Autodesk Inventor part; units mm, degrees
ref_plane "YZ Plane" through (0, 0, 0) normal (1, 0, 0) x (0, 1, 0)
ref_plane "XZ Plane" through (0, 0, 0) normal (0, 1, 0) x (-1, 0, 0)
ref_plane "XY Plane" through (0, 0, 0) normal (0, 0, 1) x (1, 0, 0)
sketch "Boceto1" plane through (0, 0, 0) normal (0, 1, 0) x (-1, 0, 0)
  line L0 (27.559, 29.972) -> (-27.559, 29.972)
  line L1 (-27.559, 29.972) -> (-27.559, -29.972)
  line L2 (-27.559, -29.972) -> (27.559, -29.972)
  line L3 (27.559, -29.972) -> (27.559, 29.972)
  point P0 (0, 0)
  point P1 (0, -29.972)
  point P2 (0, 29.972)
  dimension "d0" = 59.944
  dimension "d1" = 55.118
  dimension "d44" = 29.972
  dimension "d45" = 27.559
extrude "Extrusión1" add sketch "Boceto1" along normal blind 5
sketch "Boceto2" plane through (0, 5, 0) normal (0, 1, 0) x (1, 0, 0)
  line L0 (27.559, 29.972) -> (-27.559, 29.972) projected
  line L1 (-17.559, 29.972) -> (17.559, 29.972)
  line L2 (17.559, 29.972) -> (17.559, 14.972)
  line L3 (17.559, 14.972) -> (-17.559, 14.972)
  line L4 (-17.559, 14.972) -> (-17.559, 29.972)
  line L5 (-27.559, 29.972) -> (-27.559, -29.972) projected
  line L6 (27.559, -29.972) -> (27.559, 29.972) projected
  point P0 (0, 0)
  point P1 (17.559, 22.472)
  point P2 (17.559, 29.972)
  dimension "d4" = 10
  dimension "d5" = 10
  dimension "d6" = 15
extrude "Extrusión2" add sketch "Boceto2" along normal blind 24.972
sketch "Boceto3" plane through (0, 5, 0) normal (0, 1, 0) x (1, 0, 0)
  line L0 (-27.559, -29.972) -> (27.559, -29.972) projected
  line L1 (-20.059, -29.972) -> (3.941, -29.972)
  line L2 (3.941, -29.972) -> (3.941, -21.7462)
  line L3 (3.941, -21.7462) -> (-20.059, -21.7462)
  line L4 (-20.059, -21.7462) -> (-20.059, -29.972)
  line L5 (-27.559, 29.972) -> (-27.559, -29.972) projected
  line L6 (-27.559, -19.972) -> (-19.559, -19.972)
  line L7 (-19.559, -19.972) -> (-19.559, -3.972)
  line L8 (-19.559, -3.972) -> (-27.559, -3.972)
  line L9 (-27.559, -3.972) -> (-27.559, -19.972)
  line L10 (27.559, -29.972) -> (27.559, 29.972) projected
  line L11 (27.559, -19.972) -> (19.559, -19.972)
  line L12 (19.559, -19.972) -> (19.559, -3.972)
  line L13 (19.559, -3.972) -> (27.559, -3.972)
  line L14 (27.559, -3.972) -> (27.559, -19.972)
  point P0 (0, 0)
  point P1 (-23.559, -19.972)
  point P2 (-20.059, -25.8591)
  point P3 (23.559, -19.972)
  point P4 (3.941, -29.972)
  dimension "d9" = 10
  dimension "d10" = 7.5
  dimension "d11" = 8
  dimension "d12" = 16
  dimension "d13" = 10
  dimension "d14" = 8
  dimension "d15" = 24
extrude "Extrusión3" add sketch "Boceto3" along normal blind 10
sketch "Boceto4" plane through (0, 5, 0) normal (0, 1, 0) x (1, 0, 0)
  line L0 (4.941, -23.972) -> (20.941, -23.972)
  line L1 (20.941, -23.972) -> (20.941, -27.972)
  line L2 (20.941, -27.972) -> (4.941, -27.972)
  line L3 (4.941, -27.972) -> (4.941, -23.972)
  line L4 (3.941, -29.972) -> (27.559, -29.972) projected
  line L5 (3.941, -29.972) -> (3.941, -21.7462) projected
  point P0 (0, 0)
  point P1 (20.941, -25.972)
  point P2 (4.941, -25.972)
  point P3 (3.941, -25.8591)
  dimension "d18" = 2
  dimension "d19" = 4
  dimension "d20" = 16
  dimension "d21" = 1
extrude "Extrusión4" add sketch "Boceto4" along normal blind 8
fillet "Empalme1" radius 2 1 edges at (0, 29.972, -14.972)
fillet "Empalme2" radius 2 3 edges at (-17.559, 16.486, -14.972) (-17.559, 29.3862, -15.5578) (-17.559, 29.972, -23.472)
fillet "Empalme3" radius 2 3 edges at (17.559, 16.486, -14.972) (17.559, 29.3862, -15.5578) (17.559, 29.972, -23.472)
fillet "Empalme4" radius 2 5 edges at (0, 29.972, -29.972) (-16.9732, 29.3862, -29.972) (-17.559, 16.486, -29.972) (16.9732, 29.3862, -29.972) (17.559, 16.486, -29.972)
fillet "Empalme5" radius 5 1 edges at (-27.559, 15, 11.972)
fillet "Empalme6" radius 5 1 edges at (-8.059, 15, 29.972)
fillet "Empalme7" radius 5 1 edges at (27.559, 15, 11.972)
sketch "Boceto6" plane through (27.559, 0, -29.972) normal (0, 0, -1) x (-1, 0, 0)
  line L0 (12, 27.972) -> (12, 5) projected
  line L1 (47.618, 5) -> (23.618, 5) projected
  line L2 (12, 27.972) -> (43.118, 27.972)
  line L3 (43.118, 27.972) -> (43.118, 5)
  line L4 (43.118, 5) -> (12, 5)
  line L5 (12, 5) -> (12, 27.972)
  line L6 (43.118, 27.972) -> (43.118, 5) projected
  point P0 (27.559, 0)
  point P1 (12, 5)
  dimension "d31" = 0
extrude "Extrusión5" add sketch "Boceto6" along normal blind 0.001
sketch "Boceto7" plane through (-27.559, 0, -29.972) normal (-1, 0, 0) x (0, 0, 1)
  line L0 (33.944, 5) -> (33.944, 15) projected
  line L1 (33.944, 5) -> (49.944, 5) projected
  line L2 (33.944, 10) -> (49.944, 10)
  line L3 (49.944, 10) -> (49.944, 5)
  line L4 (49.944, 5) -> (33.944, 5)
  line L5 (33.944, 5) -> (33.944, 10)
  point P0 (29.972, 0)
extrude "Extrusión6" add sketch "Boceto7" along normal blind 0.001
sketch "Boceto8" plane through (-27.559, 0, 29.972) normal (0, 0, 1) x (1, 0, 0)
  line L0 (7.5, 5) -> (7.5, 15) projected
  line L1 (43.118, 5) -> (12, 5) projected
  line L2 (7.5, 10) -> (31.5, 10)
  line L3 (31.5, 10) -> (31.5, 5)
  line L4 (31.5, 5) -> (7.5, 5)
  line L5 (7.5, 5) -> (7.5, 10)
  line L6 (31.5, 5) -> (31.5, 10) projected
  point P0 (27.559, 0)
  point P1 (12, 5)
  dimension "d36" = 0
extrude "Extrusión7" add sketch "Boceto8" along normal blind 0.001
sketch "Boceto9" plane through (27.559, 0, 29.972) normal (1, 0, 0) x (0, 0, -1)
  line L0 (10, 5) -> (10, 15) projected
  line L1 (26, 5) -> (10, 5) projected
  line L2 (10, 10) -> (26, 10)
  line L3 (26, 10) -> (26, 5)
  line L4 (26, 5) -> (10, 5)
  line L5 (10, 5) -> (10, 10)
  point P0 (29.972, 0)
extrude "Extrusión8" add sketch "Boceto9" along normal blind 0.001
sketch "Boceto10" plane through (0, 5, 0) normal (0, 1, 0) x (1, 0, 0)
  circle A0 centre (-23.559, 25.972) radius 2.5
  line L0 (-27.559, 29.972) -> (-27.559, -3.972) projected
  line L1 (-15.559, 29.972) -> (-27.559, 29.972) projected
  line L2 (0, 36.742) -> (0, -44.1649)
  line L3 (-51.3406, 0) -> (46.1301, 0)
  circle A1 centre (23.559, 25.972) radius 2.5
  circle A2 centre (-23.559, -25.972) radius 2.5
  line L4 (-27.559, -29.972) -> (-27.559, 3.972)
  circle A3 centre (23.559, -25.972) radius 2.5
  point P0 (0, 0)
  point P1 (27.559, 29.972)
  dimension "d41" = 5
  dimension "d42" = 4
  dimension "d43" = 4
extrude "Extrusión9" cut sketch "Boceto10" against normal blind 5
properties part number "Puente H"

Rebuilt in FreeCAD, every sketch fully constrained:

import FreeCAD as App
import Part
import Sketcher

V = App.Vector


def edges_at(feature, points):
    """Names of the edges that pass closest to the given points."""
    edges = feature.Shape.Edges
    near = lambda p: min(range(len(edges)), key=lambda i: edges[i].distToShape(Part.Vertex(*p))[0])
    return sorted({f"Edge{near(p) + 1}" for p in points})


def add_polygon(sketch, points):
    """Adds a closed chain of lines whose ends are joined by coincident constraints."""
    first, n = sketch.GeometryCount, len(points)
    for a, b in zip(points, points[1:] + points[:1]):
        sketch.addGeometry(Part.LineSegment(App.Vector(*a, 0), App.Vector(*b, 0)), False)
    for i in range(n):
        sketch.addConstraint(Sketcher.Constraint("Coincident", first + i, 2, first + (i + 1) % n, 1))

doc = App.newDocument("Part")
params = doc.addObject("Spreadsheet::Sheet", "Params")
for row, (alias, value) in enumerate([
    ("pad1_length", "5 mm"),
    ("sketch2_height", "15 mm"),
    ("pad2_length", "24.972 mm"),
    ("sketch3_width", "8 mm"),
    ("sketch3_width2", "24 mm"),
    ("sketch3_height", "16 mm"),
    ("pad3_length", "10 mm"),
    ("sketch4_width", "16 mm"),
    ("sketch4_height", "4 mm"),
    ("pad4_length", "8 mm"),
    ("fillet_radius", "2 mm"),
    ("fillet2_radius", "2 mm"),
    ("fillet3_radius", "2 mm"),
    ("fillet4_radius", "2 mm"),
    ("fillet5_radius", "5 mm"),
    ("fillet6_radius", "5 mm"),
    ("fillet7_radius", "5 mm"),
    ("pad5_length", "0.001 mm"),
    ("sketch6_width", "5 mm"),
    ("sketch6_height", "16 mm"),
    ("pad6_length", "0.001 mm"),
    ("sketch7_width", "24 mm"),
    ("sketch7_height", "5 mm"),
    ("pad7_length", "0.001 mm"),
    ("sketch8_width", "5 mm"),
    ("sketch8_height", "16 mm"),
    ("pad8_length", "0.001 mm"),
    ("sketch9_diameter", "5 mm"),
    ("pocket1_length", "5 mm"),
], start=1):
    params.set(f"A{row}", alias)
    params.set(f"B{row}", "=" + value)
    params.setAlias(f"B{row}", alias)

body = doc.addObject("PartDesign::Body", "Body")

sketch1 = body.newObject("Sketcher::SketchObject", "Sketch")
sketch1.AttachmentSupport = (doc.getObject("XZ_Plane"), [""])
sketch1.MapMode = "FlatFace"
add_polygon(sketch1, [(-28, -30), (-28, 30), (28, 30), (28, -30)])
sketch1.addConstraint([
    Sketcher.Constraint("Vertical", 0),
    Sketcher.Constraint("Horizontal", 1),
    Sketcher.Constraint("Vertical", 2),
    Sketcher.Constraint("Horizontal", 3),
    Sketcher.Constraint("Symmetric", 0, 2, 2, 2, -1, 1),
    Sketcher.Constraint("DistanceX", 1, 1, 1, 2, 55.118),
    Sketcher.Constraint("DistanceY", 0, 1, 0, 2, 59.944),
])
pad1 = body.newObject("PartDesign::Pad", "Pad")
pad1.Profile = sketch1
pad1.setExpression("Length", "Params.pad1_length")
pad1.Reversed = True

sketch2 = body.newObject("Sketcher::SketchObject", "Sketch001")
sketch2.AttachmentSupport = (doc.getObject("XZ_Plane"), [""])
sketch2.MapMode = "FlatFace"
sketch2.AttachmentOffset = App.Placement(V(0, 0, -5), App.Rotation())
add_polygon(sketch2, [(18, -15), (18, -30), (-18, -30), (-18, -15)])
sketch2.addConstraint([
    Sketcher.Constraint("Vertical", 0),
    Sketcher.Constraint("Horizontal", 1),
    Sketcher.Constraint("Vertical", 2),
    Sketcher.Constraint("Horizontal", 3),
    Sketcher.Constraint("DistanceY", 0, 2, 0, 1, 15.0),
    Sketcher.Constraint("DistanceX", 1, 2, 1, 1, 35.118),
    Sketcher.Constraint("DistanceX", -1, 1, 0, 2, 17.559),
    Sketcher.Constraint("DistanceY", 0, 2, -1, 1, 29.972),
])
sketch2.setExpression("Constraints[8]", "Params.sketch2_height")
pad2 = body.newObject("PartDesign::Pad", "Pad001")
pad2.Profile = sketch2
pad2.setExpression("Length", "Params.pad2_length")
pad2.Reversed = True

sketch3 = body.newObject("Sketcher::SketchObject", "Sketch002")
sketch3.AttachmentSupport = (doc.getObject("XZ_Plane"), [""])
sketch3.MapMode = "FlatFace"
sketch3.AttachmentOffset = App.Placement(V(0, 0, -5), App.Rotation())
add_polygon(sketch3, [(20, 20), (28, 20), (28, 4), (20, 4)])
add_polygon(sketch3, [(-20, 22), (-20, 30), (4, 30), (4, 22)])
add_polygon(sketch3, [(-28, 4), (-28, 20), (-20, 20), (-20, 4)])
sketch3.addConstraint([
    Sketcher.Constraint("Horizontal", 0),
    Sketcher.Constraint("Vertical", 1),
    Sketcher.Constraint("Horizontal", 2),
    Sketcher.Constraint("Vertical", 3),
    Sketcher.Constraint("Vertical", 4),
    Sketcher.Constraint("Horizontal", 5),
    Sketcher.Constraint("Vertical", 6),
    Sketcher.Constraint("Horizontal", 7),
    Sketcher.Constraint("Vertical", 8),
    Sketcher.Constraint("Horizontal", 9),
    Sketcher.Constraint("Vertical", 10),
    Sketcher.Constraint("Horizontal", 11),
    Sketcher.Constraint("Symmetric", 0, 2, 8, 2, -2),
    Sketcher.Constraint("Symmetric", 2, 2, 10, 2, -2),
    Sketcher.Constraint("DistanceX", 0, 1, 0, 2, 8.0),
    Sketcher.Constraint("DistanceX", 5, 1, 5, 2, 24.0),
    Sketcher.Constraint("DistanceY", 1, 2, 1, 1, 16.0),
    Sketcher.Constraint("DistanceY", 3, 2, 4, 2, 10.0),
    Sketcher.Constraint("DistanceX", 8, 2, 7, 2, 7.5),
    Sketcher.Constraint("DistanceY", 4, 1, 4, 2, 8.2258),
    Sketcher.Constraint("DistanceX", -1, 1, 0, 2, 27.559),
    Sketcher.Constraint("DistanceY", -1, 1, 0, 2, 19.972),
])
sketch3.setExpression("Constraints[26]", "Params.sketch3_width")
sketch3.setExpression("Constraints[27]", "Params.sketch3_width2")
sketch3.setExpression("Constraints[28]", "Params.sketch3_height")
pad3 = body.newObject("PartDesign::Pad", "Pad002")
pad3.Profile = sketch3
pad3.setExpression("Length", "Params.pad3_length")
pad3.Reversed = True

sketch4 = body.newObject("Sketcher::SketchObject", "Sketch003")
sketch4.AttachmentSupport = (doc.getObject("XZ_Plane"), [""])
sketch4.MapMode = "FlatFace"
sketch4.AttachmentOffset = App.Placement(V(0, 0, -5), App.Rotation())
add_polygon(sketch4, [(20.9, 24), (4.9, 24), (4.9, 28), (20.9, 28)])
sketch4.addConstraint([
    Sketcher.Constraint("Horizontal", 0),
    Sketcher.Constraint("Vertical", 1),
    Sketcher.Constraint("Horizontal", 2),
    Sketcher.Constraint("Vertical", 3),
    Sketcher.Constraint("DistanceX", 0, 2, 0, 1, 16.0),
    Sketcher.Constraint("DistanceY", 1, 1, 1, 2, 4.0),
    Sketcher.Constraint("DistanceX", -1, 1, 0, 2, 4.941),
    Sketcher.Constraint("DistanceY", -1, 1, 0, 2, 23.972),
])
sketch4.setExpression("Constraints[8]", "Params.sketch4_width")
sketch4.setExpression("Constraints[9]", "Params.sketch4_height")
pad4 = body.newObject("PartDesign::Pad", "Pad003")
pad4.Profile = sketch4
pad4.setExpression("Length", "Params.pad4_length")
pad4.Reversed = True
doc.recompute()

fillet = body.newObject("PartDesign::Fillet", "Fillet")
fillet.Base = (pad4, edges_at(pad4, [(0, 29.972, -14.972)]))
fillet.setExpression("Radius", "Params.fillet_radius")
doc.recompute()

fillet2 = body.newObject("PartDesign::Fillet", "Fillet001")
fillet2.Base = (fillet, edges_at(fillet, [(-17.559, 16.486, -14.972), (-17.559, 29.386, -15.558), (-17.559, 29.972, -23.472)]))
fillet2.setExpression("Radius", "Params.fillet2_radius")
doc.recompute()

fillet3 = body.newObject("PartDesign::Fillet", "Fillet002")
fillet3.Base = (fillet2, edges_at(fillet2, [(17.559, 16.486, -14.972), (17.559, 29.386, -15.558), (17.559, 29.972, -23.472)]))
fillet3.setExpression("Radius", "Params.fillet3_radius")
doc.recompute()

fillet4 = body.newObject("PartDesign::Fillet", "Fillet003")
fillet4.Base = (fillet3, edges_at(fillet3, [
    (0, 29.972, -29.972),
    (-16.973, 29.386, -29.972),
    (-17.559, 16.486, -29.972),
    (16.973, 29.386, -29.972),
    (17.559, 16.486, -29.972),
]))
fillet4.setExpression("Radius", "Params.fillet4_radius")
doc.recompute()

fillet5 = body.newObject("PartDesign::Fillet", "Fillet004")
fillet5.Base = (fillet4, edges_at(fillet4, [(-27.559, 15, 11.972)]))
fillet5.setExpression("Radius", "Params.fillet5_radius")
doc.recompute()

fillet6 = body.newObject("PartDesign::Fillet", "Fillet005")
fillet6.Base = (fillet5, edges_at(fillet5, [(-8.059, 15, 29.972)]))
fillet6.setExpression("Radius", "Params.fillet6_radius")
doc.recompute()

fillet7 = body.newObject("PartDesign::Fillet", "Fillet006")
fillet7.Base = (fillet6, edges_at(fillet6, [(27.559, 15, 11.972)]))
fillet7.setExpression("Radius", "Params.fillet7_radius")

sketch5 = body.newObject("Sketcher::SketchObject", "Sketch004")
sketch5.AttachmentSupport = (doc.getObject("XY_Plane"), [""])
sketch5.MapMode = "FlatFace"
sketch5.AttachmentOffset = App.Placement(V(0, 0, -29.972), App.Rotation())
add_polygon(sketch5, [(-16, 28), (16, 28), (16, 5), (-16, 5)])
sketch5.addConstraint([
    Sketcher.Constraint("Horizontal", 0),
    Sketcher.Constraint("Vertical", 1),
    Sketcher.Constraint("Horizontal", 2),
    Sketcher.Constraint("Vertical", 3),
    Sketcher.Constraint("DistanceY", -1, 1, 1, 2, 5.0),
    Sketcher.Constraint("DistanceX", 0, 1, 0, 2, 31.118),
    Sketcher.Constraint("DistanceY", 1, 2, 1, 1, 22.972),
    Sketcher.Constraint("DistanceX", -1, 1, 0, 2, 15.559),
])
pad5 = body.newObject("PartDesign::Pad", "Pad004")
pad5.Profile = sketch5
pad5.setExpression("Length", "Params.pad5_length")
pad5.Reversed = True

sketch6 = body.newObject("Sketcher::SketchObject", "Sketch005")
sketch6.AttachmentSupport = (doc.getObject("YZ_Plane"), [""])
sketch6.MapMode = "FlatFace"
sketch6.AttachmentOffset = App.Placement(V(0, 0, -27.559), App.Rotation())
add_polygon(sketch6, [(10, 4), (5, 4), (5, 20), (10, 20)])
sketch6.addConstraint([
    Sketcher.Constraint("Horizontal", 0),
    Sketcher.Constraint("Vertical", 1),
    Sketcher.Constraint("Horizontal", 2),
    Sketcher.Constraint("Vertical", 3),
    Sketcher.Constraint("DistanceX", 0, 2, 0, 1, 5.0),
    Sketcher.Constraint("DistanceY", 1, 1, 1, 2, 16.0),
    Sketcher.Constraint("DistanceX", -1, 1, 0, 2, 5.0),
    Sketcher.Constraint("DistanceY", -1, 1, 0, 2, 3.972),
])
sketch6.setExpression("Constraints[8]", "Params.sketch6_width")
sketch6.setExpression("Constraints[9]", "Params.sketch6_height")
pad6 = body.newObject("PartDesign::Pad", "Pad005")
pad6.Profile = sketch6
pad6.setExpression("Length", "Params.pad6_length")
pad6.Reversed = True

sketch7 = body.newObject("Sketcher::SketchObject", "Sketch006")
sketch7.AttachmentSupport = (doc.getObject("XY_Plane"), [""])
sketch7.MapMode = "FlatFace"
sketch7.AttachmentOffset = App.Placement(V(0, 0, 29.972), App.Rotation())
add_polygon(sketch7, [(-20, 10), (-20, 5), (4, 5), (4, 10)])
sketch7.addConstraint([
    Sketcher.Constraint("Vertical", 0),
    Sketcher.Constraint("Horizontal", 1),
    Sketcher.Constraint("Vertical", 2),
    Sketcher.Constraint("Horizontal", 3),
    Sketcher.Constraint("DistanceX", 1, 1, 1, 2, 24.0),
    Sketcher.Constraint("DistanceY", 0, 2, 0, 1, 5.0),
    Sketcher.Constraint("DistanceY", -1, 1, 0, 2, 5.0),
    Sketcher.Constraint("DistanceX", 0, 2, -1, 1, 20.059),
])
sketch7.setExpression("Constraints[8]", "Params.sketch7_width")
sketch7.setExpression("Constraints[9]", "Params.sketch7_height")
pad7 = body.newObject("PartDesign::Pad", "Pad006")
pad7.Profile = sketch7
pad7.setExpression("Length", "Params.pad7_length")

sketch8 = body.newObject("Sketcher::SketchObject", "Sketch007")
sketch8.AttachmentSupport = (doc.getObject("YZ_Plane"), [""])
sketch8.MapMode = "FlatFace"
sketch8.AttachmentOffset = App.Placement(V(0, 0, 27.559), App.Rotation())
add_polygon(sketch8, [(10, 20), (5, 20), (5, 4), (10, 4)])
sketch8.addConstraint([
    Sketcher.Constraint("Horizontal", 0),
    Sketcher.Constraint("Vertical", 1),
    Sketcher.Constraint("Horizontal", 2),
    Sketcher.Constraint("Vertical", 3),
    Sketcher.Constraint("DistanceX", 0, 2, 0, 1, 5.0),
    Sketcher.Constraint("DistanceY", 1, 2, 1, 1, 16.0),
    Sketcher.Constraint("DistanceX", -1, 1, 0, 2, 5.0),
    Sketcher.Constraint("DistanceY", -1, 1, 0, 2, 19.972),
])
sketch8.setExpression("Constraints[8]", "Params.sketch8_width")
sketch8.setExpression("Constraints[9]", "Params.sketch8_height")
pad8 = body.newObject("PartDesign::Pad", "Pad007")
pad8.Profile = sketch8
pad8.setExpression("Length", "Params.pad8_length")

sketch9 = body.newObject("Sketcher::SketchObject", "Sketch008")
sketch9.AttachmentSupport = (doc.getObject("XZ_Plane"), [""])
sketch9.MapMode = "FlatFace"
sketch9.AttachmentOffset = App.Placement(V(0, 0, -5), App.Rotation())
sketch9.addGeometry([
    Part.Circle(V(-23.6, -26, 0), V(0, 0, 1), 2.5),
    Part.Circle(V(23.6, -26, 0), V(0, 0, 1), 2.5),
    Part.Circle(V(-23.6, 26, 0), V(0, 0, 1), 2.5),
    Part.Circle(V(23.6, 26, 0), V(0, 0, 1), 2.5),
], False)
sketch9.addConstraint([
    Sketcher.Constraint("Equal", 0, 1),
    Sketcher.Constraint("Equal", 1, 2),
    Sketcher.Constraint("Equal", 2, 3),
    Sketcher.Constraint("Symmetric", 1, 3, 2, 3, -1, 1),
    Sketcher.Constraint("Symmetric", 0, 3, 3, 3, -1, 1),
    Sketcher.Constraint("Symmetric", 0, 3, 1, 3, -2),
    Sketcher.Constraint("Diameter", 0, 5.0),
    Sketcher.Constraint("DistanceX", 0, 3, -1, 1, 23.559),
    Sketcher.Constraint("DistanceY", 0, 3, -1, 1, 25.972),
])
sketch9.setExpression("Constraints[6]", "Params.sketch9_diameter")
pocket1 = body.newObject("PartDesign::Pocket", "Pocket")
pocket1.Profile = sketch9
pocket1.setExpression("Length", "Params.pocket1_length")
pocket1.Reversed = True

doc.recompute()
